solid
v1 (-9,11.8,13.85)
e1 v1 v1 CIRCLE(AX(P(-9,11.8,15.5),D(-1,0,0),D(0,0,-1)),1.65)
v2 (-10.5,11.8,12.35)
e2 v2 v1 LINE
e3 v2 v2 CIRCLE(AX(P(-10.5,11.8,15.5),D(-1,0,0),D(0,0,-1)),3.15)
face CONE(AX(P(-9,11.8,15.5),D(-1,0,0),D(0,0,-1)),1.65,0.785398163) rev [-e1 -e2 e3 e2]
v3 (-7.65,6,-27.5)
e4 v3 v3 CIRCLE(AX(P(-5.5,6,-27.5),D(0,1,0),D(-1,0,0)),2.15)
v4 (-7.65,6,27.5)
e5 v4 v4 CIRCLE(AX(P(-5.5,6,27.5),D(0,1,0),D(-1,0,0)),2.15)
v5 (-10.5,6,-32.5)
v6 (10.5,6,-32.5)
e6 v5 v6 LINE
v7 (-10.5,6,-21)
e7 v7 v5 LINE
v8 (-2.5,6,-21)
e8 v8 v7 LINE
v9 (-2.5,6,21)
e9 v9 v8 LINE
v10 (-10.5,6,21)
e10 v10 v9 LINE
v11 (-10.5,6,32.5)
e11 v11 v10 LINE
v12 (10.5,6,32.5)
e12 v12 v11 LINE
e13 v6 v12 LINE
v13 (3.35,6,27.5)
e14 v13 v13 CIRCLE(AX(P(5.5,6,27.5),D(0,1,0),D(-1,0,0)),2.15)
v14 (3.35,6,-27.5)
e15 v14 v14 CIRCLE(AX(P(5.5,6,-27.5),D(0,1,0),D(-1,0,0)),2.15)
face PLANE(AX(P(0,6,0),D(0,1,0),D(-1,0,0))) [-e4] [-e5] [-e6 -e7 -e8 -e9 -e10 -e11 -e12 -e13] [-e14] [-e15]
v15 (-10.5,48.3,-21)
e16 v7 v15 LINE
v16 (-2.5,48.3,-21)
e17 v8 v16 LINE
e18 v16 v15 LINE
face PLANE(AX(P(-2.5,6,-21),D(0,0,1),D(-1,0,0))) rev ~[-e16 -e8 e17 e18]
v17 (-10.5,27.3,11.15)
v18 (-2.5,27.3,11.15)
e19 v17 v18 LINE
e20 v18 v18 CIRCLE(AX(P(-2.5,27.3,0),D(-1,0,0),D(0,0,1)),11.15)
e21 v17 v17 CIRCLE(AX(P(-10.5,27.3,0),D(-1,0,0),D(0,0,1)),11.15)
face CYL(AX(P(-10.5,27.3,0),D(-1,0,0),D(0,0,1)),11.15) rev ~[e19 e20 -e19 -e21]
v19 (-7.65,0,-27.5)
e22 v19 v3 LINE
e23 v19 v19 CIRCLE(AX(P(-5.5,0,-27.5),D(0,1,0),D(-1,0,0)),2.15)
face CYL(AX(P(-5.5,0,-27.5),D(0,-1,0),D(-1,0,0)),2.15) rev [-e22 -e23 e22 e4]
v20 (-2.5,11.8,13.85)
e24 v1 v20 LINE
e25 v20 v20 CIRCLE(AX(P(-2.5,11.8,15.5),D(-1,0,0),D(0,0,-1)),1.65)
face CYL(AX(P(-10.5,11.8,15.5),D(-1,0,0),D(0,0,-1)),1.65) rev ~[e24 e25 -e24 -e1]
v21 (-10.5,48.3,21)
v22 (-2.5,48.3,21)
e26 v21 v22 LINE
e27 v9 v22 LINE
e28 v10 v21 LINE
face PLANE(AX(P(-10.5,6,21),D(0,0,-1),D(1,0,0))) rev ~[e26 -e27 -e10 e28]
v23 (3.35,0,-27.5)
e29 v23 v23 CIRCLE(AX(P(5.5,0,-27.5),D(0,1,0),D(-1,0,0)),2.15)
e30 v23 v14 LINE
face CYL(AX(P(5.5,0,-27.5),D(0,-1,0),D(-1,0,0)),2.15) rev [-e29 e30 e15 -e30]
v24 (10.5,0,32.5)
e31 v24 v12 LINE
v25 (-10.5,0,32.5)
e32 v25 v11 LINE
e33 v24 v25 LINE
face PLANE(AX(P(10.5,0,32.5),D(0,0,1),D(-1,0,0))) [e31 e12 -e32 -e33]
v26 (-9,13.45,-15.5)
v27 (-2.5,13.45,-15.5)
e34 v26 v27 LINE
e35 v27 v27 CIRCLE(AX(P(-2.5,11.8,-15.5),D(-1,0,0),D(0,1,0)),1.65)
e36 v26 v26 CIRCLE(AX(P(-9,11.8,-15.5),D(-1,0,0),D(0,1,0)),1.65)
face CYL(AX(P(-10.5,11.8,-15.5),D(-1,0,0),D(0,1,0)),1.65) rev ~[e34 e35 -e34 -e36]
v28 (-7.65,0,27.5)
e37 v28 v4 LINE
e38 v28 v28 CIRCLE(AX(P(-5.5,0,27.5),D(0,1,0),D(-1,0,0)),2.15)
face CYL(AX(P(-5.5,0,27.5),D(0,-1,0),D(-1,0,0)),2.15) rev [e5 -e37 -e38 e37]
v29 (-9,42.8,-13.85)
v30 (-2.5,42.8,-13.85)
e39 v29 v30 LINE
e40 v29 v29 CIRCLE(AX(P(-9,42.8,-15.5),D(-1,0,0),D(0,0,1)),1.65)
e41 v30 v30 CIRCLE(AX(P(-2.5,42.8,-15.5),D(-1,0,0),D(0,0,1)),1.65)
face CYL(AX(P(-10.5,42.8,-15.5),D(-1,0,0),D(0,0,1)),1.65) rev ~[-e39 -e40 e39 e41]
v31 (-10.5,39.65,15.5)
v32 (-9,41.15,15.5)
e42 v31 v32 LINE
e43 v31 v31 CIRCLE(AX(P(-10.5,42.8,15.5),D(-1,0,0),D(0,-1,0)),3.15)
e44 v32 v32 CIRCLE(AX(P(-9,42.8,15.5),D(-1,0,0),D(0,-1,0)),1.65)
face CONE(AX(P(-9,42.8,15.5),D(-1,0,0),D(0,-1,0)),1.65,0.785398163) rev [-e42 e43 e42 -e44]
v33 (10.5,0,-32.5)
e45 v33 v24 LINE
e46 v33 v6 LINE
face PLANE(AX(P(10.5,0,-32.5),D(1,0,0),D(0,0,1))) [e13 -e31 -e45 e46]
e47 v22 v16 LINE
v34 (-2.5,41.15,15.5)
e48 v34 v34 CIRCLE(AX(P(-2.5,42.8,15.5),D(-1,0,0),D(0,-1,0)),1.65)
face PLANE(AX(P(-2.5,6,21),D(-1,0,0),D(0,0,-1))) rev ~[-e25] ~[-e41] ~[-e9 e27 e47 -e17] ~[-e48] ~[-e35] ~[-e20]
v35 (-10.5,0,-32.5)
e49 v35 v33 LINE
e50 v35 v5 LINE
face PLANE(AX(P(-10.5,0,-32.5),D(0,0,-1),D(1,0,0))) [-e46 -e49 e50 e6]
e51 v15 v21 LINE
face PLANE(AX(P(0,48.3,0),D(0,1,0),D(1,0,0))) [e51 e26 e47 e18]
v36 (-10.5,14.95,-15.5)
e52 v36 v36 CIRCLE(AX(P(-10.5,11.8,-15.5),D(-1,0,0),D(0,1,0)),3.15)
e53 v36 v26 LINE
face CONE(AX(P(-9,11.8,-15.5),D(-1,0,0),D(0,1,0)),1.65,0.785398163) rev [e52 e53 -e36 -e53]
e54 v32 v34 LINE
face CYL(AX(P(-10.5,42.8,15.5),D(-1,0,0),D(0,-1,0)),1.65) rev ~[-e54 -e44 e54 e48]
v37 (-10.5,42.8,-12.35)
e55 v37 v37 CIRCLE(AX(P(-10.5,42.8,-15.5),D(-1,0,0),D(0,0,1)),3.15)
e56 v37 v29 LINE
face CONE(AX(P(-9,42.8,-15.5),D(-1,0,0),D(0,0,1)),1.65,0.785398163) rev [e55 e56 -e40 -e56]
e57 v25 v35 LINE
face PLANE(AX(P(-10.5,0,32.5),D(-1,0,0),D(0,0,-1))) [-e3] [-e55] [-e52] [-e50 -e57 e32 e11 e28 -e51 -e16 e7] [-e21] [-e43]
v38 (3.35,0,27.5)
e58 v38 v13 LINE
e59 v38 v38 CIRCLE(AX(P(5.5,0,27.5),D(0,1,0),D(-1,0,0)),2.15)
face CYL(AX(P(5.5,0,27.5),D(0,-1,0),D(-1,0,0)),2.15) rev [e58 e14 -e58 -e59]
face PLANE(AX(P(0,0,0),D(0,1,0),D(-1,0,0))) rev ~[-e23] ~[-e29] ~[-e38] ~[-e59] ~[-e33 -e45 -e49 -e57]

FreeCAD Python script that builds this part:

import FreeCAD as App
import Part
import Sketcher

V = App.Vector
Q = App.Units.Quantity


def edges_at(feature, points):
    """Names of the edges that pass closest to the given points."""
    edges = feature.Shape.Edges
    near = lambda p: min(range(len(edges)), key=lambda i: edges[i].distToShape(Part.Vertex(*p))[0])
    return sorted({f"Edge{near(p) + 1}" for p in points})

doc = App.newDocument("Part")
body = doc.addObject("PartDesign::Body", "Body")

sketch1 = body.newObject("Sketcher::SketchObject", "Sketch")
sketch1.AttachmentSupport = (doc.getObject("XZ_Plane"), [""])
sketch1.MapMode = "FlatFace"
sketch1.addGeometry(Part.LineSegment(V(-10.5, 32.5, 0), V(10.5, 32.5, 0)), False)
sketch1.addGeometry(Part.LineSegment(V(10.5, 32.5, 0), V(10.5, -32.5, 0)), False)
sketch1.addGeometry(Part.LineSegment(V(10.5, -32.5, 0), V(-10.5, -32.5, 0)), False)
sketch1.addGeometry(Part.LineSegment(V(-10.5, -32.5, 0), V(-10.5, 32.5, 0)), False)
sketch1.addGeometry(Part.Circle(V(5.5, -27.5, 0), V(0, 0, 1), 2.15), False)
sketch1.addGeometry(Part.Circle(V(-5.5, -27.5, 0), V(0, 0, 1), 2.15), False)
sketch1.addGeometry(Part.Circle(V(5.5, 27.5, 0), V(0, 0, 1), 2.15), False)
sketch1.addGeometry(Part.Circle(V(-5.5, 27.5, 0), V(0, 0, 1), 2.15), False)
sketch1.addConstraint(Sketcher.Constraint("Coincident", 0, 2, 1, 1))
sketch1.addConstraint(Sketcher.Constraint("Coincident", 1, 2, 2, 1))
sketch1.addConstraint(Sketcher.Constraint("Coincident", 2, 2, 3, 1))
sketch1.addConstraint(Sketcher.Constraint("Coincident", 3, 2, 0, 1))
sketch1.addConstraint(Sketcher.Constraint("Horizontal", 0))
sketch1.addConstraint(Sketcher.Constraint("Vertical", 1))
sketch1.addConstraint(Sketcher.Constraint("Horizontal", 2))
sketch1.addConstraint(Sketcher.Constraint("Vertical", 3))
sketch1.addConstraint(Sketcher.Constraint("Equal", 4, 5))
sketch1.addConstraint(Sketcher.Constraint("Equal", 5, 6))
sketch1.addConstraint(Sketcher.Constraint("Equal", 6, 7))
sketch1.addConstraint(Sketcher.Constraint("Symmetric", 5, 3, 6, 3, -1, 1))
sketch1.addConstraint(Sketcher.Constraint("Symmetric", 4, 3, 7, 3, -1, 1))
sketch1.addConstraint(Sketcher.Constraint("Symmetric", 0, 2, 2, 2, -1, 1))
sketch1.addConstraint(Sketcher.Constraint("Symmetric", 4, 3, 5, 3, -2))
sketch1.addConstraint(Sketcher.Constraint("Diameter", 4, Q("4.3 mm")))
sketch1.addConstraint(Sketcher.Constraint("DistanceX", 0, 1, 0, 2, Q("21 mm")))
sketch1.addConstraint(Sketcher.Constraint("DistanceY", 1, 2, 1, 1, Q("65 mm")))
sketch1.addConstraint(Sketcher.Constraint("DistanceX", 5, 3, 4, 3, Q("11 mm")))
sketch1.addConstraint(Sketcher.Constraint("DistanceY", 4, 3, 6, 3, Q("55 mm")))
pad1 = body.newObject("PartDesign::Pad", "Pad")
pad1.Profile = sketch1
pad1.Length = 6
pad1.Reversed = True

sketch2 = body.newObject("Sketcher::SketchObject", "Sketch001")
sketch2.AttachmentSupport = (doc.getObject("XZ_Plane"), [""])
sketch2.MapMode = "FlatFace"
sketch2.AttachmentOffset = App.Placement(V(0, 0, -6), App.Rotation())
sketch2.addGeometry(Part.LineSegment(V(-2.5, -21, 0), V(-10.5, -21, 0)), False)
sketch2.addGeometry(Part.LineSegment(V(-10.5, -21, 0), V(-10.5, 21, 0)), False)
sketch2.addGeometry(Part.LineSegment(V(-10.5, 21, 0), V(-2.5, 21, 0)), False)
sketch2.addGeometry(Part.LineSegment(V(-2.5, 21, 0), V(-2.5, -21, 0)), False)
sketch2.addConstraint(Sketcher.Constraint("Coincident", 0, 2, 1, 1))
sketch2.addConstraint(Sketcher.Constraint("Coincident", 1, 2, 2, 1))
sketch2.addConstraint(Sketcher.Constraint("Coincident", 2, 2, 3, 1))
sketch2.addConstraint(Sketcher.Constraint("Coincident", 3, 2, 0, 1))
sketch2.addConstraint(Sketcher.Constraint("Horizontal", 0))
sketch2.addConstraint(Sketcher.Constraint("Vertical", 1))
sketch2.addConstraint(Sketcher.Constraint("Horizontal", 2))
sketch2.addConstraint(Sketcher.Constraint("Vertical", 3))
sketch2.addConstraint(Sketcher.Constraint("DistanceX", 0, 2, 0, 1, Q("8 mm")))
sketch2.addConstraint(Sketcher.Constraint("DistanceY", 1, 1, 1, 2, Q("42 mm")))
sketch2.addConstraint(Sketcher.Constraint("DistanceY", 0, 2, -1, 1, Q("21 mm")))
sketch2.addConstraint(Sketcher.Constraint("DistanceX", 0, 2, -1, 1, Q("10.5 mm")))
pad2 = body.newObject("PartDesign::Pad", "Pad001")
pad2.Profile = sketch2
pad2.Length = 42.3
pad2.Reversed = True

sketch3 = body.newObject("Sketcher::SketchObject", "Sketch002")
sketch3.AttachmentSupport = (doc.getObject("YZ_Plane"), [""])
sketch3.MapMode = "FlatFace"
sketch3.AttachmentOffset = App.Placement(V(0, 0, -10.5), App.Rotation())
sketch3.addGeometry(Part.Circle(V(27.3, 0, 0), V(0, 0, 1), 11.15), False)
sketch3.addConstraint(Sketcher.Constraint("PointOnObject", 0, 3, -1))
sketch3.addConstraint(Sketcher.Constraint("Diameter", 0, Q("22.3 mm")))
sketch3.addConstraint(Sketcher.Constraint("DistanceX", -1, 1, 0, 3, Q("27.3 mm")))
pocket1 = body.newObject("PartDesign::Pocket", "Pocket")
pocket1.Profile = sketch3
pocket1.Type = "ThroughAll"
pocket1.Reversed = True

sketch4 = body.newObject("Sketcher::SketchObject", "Sketch003")
sketch4.AttachmentSupport = (doc.getObject("YZ_Plane"), [""])
sketch4.MapMode = "FlatFace"
sketch4.AttachmentOffset = App.Placement(V(0, 0, -10.5), App.Rotation())
sketch4.addGeometry(Part.Circle(V(42.8, -15.5, 0), V(0, 0, 1), 1.65), False)
sketch4.addConstraint(Sketcher.Constraint("Diameter", 0, Q("3.3 mm")))
sketch4.addConstraint(Sketcher.Constraint("DistanceY", 0, 3, -1, 1, Q("15.5 mm")))
sketch4.addConstraint(Sketcher.Constraint("DistanceX", -1, 1, 0, 3, Q("42.8 mm")))
pocket2 = body.newObject("PartDesign::Pocket", "Pocket001")
pocket2.Profile = sketch4
pocket2.Type = "ThroughAll"
pocket2.Reversed = True
doc.recompute()

chamfer = body.newObject("PartDesign::Chamfer", "Chamfer")
chamfer.Base = (pocket2, edges_at(pocket2, [(-10.5, 42.8, -17.15)]))
chamfer.Size = 1.5
doc.recompute()

datumline = body.newObject("PartDesign::Line", "DatumLine")
datumline.Placement = App.Placement(V(0, 27.3, 0), App.Rotation(V(0, 0, 1), V(1, 0, 0)))
polarpattern = body.newObject("PartDesign::PolarPattern", "PolarPattern")
polarpattern.Originals = [pocket2, chamfer]
polarpattern.Axis = (datumline, [""])
polarpattern.Angle = 360
polarpattern.Occurrences = 4
body.Tip = polarpattern

doc.recompute()
